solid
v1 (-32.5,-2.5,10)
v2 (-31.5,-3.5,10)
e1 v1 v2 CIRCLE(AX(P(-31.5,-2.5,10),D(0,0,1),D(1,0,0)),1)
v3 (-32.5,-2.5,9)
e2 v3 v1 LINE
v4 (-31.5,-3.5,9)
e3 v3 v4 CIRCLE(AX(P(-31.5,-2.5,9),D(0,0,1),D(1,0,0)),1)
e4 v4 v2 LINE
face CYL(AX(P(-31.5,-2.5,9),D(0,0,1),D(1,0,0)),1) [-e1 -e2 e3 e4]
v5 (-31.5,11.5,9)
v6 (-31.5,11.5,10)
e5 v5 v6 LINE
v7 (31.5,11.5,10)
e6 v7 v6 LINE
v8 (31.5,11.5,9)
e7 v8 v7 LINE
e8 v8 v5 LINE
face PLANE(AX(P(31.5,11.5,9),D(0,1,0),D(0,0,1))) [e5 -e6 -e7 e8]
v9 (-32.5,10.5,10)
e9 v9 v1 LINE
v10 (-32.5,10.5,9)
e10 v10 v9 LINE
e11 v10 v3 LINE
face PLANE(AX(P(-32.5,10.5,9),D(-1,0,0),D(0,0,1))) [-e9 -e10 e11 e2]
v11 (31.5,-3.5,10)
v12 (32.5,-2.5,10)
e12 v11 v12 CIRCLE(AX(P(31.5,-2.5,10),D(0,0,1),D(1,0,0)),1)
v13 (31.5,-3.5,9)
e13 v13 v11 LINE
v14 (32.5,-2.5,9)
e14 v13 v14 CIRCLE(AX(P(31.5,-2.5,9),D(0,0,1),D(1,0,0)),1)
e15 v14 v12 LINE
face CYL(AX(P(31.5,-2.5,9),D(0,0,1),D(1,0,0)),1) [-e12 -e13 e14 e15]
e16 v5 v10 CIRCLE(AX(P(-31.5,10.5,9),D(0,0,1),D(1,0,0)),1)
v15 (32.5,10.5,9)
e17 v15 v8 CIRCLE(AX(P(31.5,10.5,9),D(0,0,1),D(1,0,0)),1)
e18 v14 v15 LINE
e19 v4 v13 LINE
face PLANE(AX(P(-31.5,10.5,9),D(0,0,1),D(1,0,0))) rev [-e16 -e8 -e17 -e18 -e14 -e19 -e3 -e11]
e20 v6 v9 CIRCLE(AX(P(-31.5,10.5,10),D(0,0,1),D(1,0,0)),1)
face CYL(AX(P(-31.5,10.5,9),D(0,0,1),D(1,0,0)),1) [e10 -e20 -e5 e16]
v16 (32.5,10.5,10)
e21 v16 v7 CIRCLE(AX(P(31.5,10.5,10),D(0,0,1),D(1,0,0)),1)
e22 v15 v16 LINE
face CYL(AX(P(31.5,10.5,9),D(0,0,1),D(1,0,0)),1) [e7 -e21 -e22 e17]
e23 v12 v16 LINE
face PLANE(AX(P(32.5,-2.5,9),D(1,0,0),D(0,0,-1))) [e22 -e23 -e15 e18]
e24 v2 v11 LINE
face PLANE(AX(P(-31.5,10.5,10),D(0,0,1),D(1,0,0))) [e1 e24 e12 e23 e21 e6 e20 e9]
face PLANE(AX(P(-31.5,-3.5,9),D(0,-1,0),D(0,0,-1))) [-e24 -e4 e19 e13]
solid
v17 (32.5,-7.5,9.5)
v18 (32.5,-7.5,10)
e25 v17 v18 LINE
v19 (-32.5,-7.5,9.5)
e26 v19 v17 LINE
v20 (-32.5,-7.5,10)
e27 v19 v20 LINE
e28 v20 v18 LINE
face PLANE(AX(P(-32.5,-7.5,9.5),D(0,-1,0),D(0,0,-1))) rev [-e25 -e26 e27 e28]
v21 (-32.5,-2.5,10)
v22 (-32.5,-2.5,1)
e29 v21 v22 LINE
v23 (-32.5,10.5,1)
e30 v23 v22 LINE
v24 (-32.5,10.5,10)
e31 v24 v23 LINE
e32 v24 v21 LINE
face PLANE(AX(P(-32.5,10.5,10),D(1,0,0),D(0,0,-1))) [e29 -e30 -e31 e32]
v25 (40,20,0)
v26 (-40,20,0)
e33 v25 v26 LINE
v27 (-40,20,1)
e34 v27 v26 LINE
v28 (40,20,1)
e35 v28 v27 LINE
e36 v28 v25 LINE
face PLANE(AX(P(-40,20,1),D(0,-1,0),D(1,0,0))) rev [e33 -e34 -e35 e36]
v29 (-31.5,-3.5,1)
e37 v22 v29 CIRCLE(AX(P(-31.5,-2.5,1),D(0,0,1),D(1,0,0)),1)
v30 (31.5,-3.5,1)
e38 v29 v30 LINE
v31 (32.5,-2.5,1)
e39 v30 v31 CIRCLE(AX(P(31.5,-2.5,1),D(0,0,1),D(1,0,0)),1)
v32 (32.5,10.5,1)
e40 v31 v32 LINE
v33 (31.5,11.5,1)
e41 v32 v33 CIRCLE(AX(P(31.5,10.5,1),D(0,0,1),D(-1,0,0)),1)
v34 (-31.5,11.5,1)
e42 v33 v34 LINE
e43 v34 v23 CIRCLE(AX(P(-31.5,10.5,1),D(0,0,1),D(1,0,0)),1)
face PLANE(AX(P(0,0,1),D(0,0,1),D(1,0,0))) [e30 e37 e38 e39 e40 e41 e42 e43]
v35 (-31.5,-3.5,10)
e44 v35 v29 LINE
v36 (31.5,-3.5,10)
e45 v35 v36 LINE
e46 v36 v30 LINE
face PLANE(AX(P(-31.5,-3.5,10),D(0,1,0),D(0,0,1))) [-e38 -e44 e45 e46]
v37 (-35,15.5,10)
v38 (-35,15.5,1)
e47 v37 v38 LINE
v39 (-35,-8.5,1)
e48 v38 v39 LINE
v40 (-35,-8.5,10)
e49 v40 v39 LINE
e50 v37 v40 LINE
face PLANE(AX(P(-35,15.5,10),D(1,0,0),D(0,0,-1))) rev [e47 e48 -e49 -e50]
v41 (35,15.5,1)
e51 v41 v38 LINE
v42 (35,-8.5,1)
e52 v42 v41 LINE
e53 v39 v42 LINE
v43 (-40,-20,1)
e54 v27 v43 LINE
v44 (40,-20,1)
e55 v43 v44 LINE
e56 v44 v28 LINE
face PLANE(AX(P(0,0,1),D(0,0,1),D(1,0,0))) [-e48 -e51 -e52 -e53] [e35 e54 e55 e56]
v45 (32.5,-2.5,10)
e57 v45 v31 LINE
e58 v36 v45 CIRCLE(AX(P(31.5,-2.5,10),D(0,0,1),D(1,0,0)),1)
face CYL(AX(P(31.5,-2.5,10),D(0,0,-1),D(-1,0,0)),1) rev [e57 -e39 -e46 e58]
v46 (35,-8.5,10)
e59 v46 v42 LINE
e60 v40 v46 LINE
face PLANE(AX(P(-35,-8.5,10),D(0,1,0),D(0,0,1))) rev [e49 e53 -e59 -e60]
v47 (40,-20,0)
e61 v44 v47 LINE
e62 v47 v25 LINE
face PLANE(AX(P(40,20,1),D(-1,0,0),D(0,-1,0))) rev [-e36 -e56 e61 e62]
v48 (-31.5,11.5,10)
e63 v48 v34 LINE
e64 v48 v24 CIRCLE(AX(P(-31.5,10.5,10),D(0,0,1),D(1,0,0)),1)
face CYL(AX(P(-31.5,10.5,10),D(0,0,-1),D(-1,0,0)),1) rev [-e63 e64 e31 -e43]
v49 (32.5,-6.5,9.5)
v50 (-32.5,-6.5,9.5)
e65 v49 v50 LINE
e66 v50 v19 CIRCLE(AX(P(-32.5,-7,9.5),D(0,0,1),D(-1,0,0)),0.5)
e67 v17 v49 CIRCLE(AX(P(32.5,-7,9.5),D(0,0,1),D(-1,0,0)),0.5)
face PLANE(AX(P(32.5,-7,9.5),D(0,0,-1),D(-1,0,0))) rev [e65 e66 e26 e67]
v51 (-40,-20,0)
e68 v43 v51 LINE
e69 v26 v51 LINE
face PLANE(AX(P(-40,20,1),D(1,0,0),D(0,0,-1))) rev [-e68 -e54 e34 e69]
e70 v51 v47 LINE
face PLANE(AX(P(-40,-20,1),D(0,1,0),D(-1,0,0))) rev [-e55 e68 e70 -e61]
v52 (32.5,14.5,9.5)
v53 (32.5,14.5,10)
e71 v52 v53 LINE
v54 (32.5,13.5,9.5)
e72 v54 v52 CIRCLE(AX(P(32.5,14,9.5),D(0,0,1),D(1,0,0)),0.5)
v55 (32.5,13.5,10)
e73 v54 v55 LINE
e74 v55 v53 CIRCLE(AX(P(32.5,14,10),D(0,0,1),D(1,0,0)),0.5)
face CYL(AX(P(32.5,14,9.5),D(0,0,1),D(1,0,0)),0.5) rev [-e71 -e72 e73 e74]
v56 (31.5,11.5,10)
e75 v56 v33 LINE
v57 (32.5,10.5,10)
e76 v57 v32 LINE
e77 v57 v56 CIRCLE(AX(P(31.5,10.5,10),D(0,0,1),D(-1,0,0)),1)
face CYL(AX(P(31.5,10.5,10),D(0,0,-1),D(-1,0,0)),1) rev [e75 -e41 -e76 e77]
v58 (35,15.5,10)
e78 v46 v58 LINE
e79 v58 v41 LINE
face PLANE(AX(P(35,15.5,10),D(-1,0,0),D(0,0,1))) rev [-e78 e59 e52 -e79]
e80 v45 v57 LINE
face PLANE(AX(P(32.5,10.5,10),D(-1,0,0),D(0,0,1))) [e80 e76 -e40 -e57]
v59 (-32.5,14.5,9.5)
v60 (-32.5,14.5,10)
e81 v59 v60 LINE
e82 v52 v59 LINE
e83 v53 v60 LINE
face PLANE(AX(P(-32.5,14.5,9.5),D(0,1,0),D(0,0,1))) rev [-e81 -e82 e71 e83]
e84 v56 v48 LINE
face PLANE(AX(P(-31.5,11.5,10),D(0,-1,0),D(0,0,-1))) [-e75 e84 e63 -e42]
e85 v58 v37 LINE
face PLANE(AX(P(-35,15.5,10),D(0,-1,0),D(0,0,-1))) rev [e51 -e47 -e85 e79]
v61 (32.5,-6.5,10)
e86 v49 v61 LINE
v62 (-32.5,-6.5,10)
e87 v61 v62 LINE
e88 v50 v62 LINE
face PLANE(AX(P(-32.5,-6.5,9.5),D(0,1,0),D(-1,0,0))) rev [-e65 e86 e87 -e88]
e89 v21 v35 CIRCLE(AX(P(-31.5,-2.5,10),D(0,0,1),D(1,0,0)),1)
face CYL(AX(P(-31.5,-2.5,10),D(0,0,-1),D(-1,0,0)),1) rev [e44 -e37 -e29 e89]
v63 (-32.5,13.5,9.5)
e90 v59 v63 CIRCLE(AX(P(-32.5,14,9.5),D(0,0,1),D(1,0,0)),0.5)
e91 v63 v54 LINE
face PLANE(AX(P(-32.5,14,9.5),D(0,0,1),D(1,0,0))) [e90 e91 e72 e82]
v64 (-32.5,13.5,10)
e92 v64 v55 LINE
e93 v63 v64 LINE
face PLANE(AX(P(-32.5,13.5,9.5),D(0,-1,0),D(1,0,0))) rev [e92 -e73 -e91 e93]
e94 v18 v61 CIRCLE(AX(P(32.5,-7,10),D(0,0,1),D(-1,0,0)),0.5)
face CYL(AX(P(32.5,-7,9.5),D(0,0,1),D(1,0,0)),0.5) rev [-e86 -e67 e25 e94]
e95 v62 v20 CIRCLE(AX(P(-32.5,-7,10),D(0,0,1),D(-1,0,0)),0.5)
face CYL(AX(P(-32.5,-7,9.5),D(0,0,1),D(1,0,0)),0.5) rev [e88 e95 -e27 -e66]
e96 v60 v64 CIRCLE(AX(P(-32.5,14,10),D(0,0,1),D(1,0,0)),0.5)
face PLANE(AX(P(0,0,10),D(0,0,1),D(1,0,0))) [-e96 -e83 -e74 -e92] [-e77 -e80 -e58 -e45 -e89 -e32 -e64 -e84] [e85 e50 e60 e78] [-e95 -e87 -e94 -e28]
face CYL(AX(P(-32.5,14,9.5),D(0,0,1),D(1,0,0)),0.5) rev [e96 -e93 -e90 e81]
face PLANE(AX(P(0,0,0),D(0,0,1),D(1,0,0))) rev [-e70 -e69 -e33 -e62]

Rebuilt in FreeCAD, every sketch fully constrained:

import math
import FreeCAD as App
import Part
import Sketcher
from FreeCAD import Vector
Q = App.Units.Quantity

doc = App.newDocument("Part")
body = doc.addObject("PartDesign::Body", "Body")

sketch1 = doc.addObject("Sketcher::SketchObject", "Sketch")
body.addObject(sketch1)
sketch1.AttachmentSupport = (doc.XY_Plane, [""])
sketch1.MapMode = "FlatFace"
sketch1.addGeometry(Part.LineSegment(Vector(-40, 20, 0), Vector(-40, -20, 0)), False)
sketch1.addGeometry(Part.LineSegment(Vector(-40, -20, 0), Vector(40, -20, 0)), False)
sketch1.addGeometry(Part.LineSegment(Vector(40, -20, 0), Vector(40, 20, 0)), False)
sketch1.addGeometry(Part.LineSegment(Vector(40, 20, 0), Vector(-40, 20, 0)), False)
sketch1.addConstraint(Sketcher.Constraint("Coincident", 0, 2, 1, 1))
sketch1.addConstraint(Sketcher.Constraint("Coincident", 1, 2, 2, 1))
sketch1.addConstraint(Sketcher.Constraint("Coincident", 2, 2, 3, 1))
sketch1.addConstraint(Sketcher.Constraint("Coincident", 3, 2, 0, 1))
sketch1.addConstraint(Sketcher.Constraint("Vertical", 0))
sketch1.addConstraint(Sketcher.Constraint("Horizontal", 1))
sketch1.addConstraint(Sketcher.Constraint("Vertical", 2))
sketch1.addConstraint(Sketcher.Constraint("Horizontal", 3))
sketch1.addConstraint(Sketcher.Constraint("Symmetric", 0, 2, 2, 2, -1, 1))
sketch1.addConstraint(Sketcher.Constraint("DistanceX", 1, 1, 1, 2, Q("80 mm")))
sketch1.addConstraint(Sketcher.Constraint("DistanceY", 0, 2, 0, 1, Q("40 mm")))
pad1 = doc.addObject("PartDesign::Pad", "Pad")
body.addObject(pad1)
pad1.Profile = sketch1
pad1.Length = 1

sketch2 = doc.addObject("Sketcher::SketchObject", "Sketch001")
body.addObject(sketch2)
sketch2.AttachmentSupport = (doc.XY_Plane, [""])
sketch2.MapMode = "FlatFace"
sketch2.AttachmentOffset = App.Placement(Vector(0, 0, 1), App.Rotation())
sketch2.addGeometry(Part.LineSegment(Vector(-35, 15.5, 0), Vector(-35, -8.5, 0)), False)
sketch2.addGeometry(Part.LineSegment(Vector(-35, -8.5, 0), Vector(35, -8.5, 0)), False)
sketch2.addGeometry(Part.LineSegment(Vector(35, -8.5, 0), Vector(35, 15.5, 0)), False)
sketch2.addGeometry(Part.LineSegment(Vector(35, 15.5, 0), Vector(-35, 15.5, 0)), False)
sketch2.addGeometry(Part.ArcOfCircle(Part.Circle(Vector(-31.5, 10.5, 0), Vector(0, 0, 1), 1), math.radians(90), math.radians(180)), False)
sketch2.addGeometry(Part.LineSegment(Vector(-31.5, 11.5, 0), Vector(31.5, 11.5, 0)), False)
sketch2.addGeometry(Part.ArcOfCircle(Part.Circle(Vector(31.5, 10.5, 0), Vector(0, 0, 1), 1), math.radians(0), math.radians(90)), False)
sketch2.addGeometry(Part.LineSegment(Vector(32.5, 10.5, 0), Vector(32.5, -2.5, 0)), False)
sketch2.addGeometry(Part.ArcOfCircle(Part.Circle(Vector(31.5, -2.5, 0), Vector(0, 0, 1), 1), math.radians(-90), math.radians(0)), False)
sketch2.addGeometry(Part.LineSegment(Vector(31.5, -3.5, 0), Vector(-31.5, -3.5, 0)), False)
sketch2.addGeometry(Part.ArcOfCircle(Part.Circle(Vector(-31.5, -2.5, 0), Vector(0, 0, 1), 1), math.radians(-180), math.radians(-90)), False)
sketch2.addGeometry(Part.LineSegment(Vector(-32.5, -2.5, 0), Vector(-32.5, 10.5, 0)), False)
sketch2.addConstraint(Sketcher.Constraint("Coincident", 0, 2, 1, 1))
sketch2.addConstraint(Sketcher.Constraint("Coincident", 1, 2, 2, 1))
sketch2.addConstraint(Sketcher.Constraint("Coincident", 2, 2, 3, 1))
sketch2.addConstraint(Sketcher.Constraint("Coincident", 3, 2, 0, 1))
sketch2.addConstraint(Sketcher.Constraint("Tangent", 4, 1, 5, 1))
sketch2.addConstraint(Sketcher.Constraint("Tangent", 5, 2, 6, 2))
sketch2.addConstraint(Sketcher.Constraint("Tangent", 6, 1, 7, 1))
sketch2.addConstraint(Sketcher.Constraint("Tangent", 7, 2, 8, 2))
sketch2.addConstraint(Sketcher.Constraint("Tangent", 8, 1, 9, 1))
sketch2.addConstraint(Sketcher.Constraint("Tangent", 9, 2, 10, 2))
sketch2.addConstraint(Sketcher.Constraint("Tangent", 10, 1, 11, 1))
sketch2.addConstraint(Sketcher.Constraint("Tangent", 11, 2, 4, 2))
sketch2.addConstraint(Sketcher.Constraint("Vertical", 0))
sketch2.addConstraint(Sketcher.Constraint("Horizontal", 1))
sketch2.addConstraint(Sketcher.Constraint("Vertical", 2))
sketch2.addConstraint(Sketcher.Constraint("Horizontal", 3))
sketch2.addConstraint(Sketcher.Constraint("Horizontal", 5))
sketch2.addConstraint(Sketcher.Constraint("Vertical", 7))
sketch2.addConstraint(Sketcher.Constraint("Horizontal", 9))
sketch2.addConstraint(Sketcher.Constraint("Vertical", 11))
sketch2.addConstraint(Sketcher.Constraint("Equal", 4, 6))
sketch2.addConstraint(Sketcher.Constraint("Equal", 6, 8))
sketch2.addConstraint(Sketcher.Constraint("Equal", 8, 10))
sketch2.addConstraint(Sketcher.Constraint("Radius", 4, Q("1 mm")))
sketch2.addConstraint(Sketcher.Constraint("DistanceX", 1, 1, 1, 2, Q("70 mm")))
sketch2.addConstraint(Sketcher.Constraint("DistanceX", 5, 1, 5, 2, Q("63 mm")))
sketch2.addConstraint(Sketcher.Constraint("DistanceY", 0, 2, 0, 1, Q("24 mm")))
sketch2.addConstraint(Sketcher.Constraint("DistanceY", 7, 2, 7, 1, Q("13 mm")))
sketch2.addConstraint(Sketcher.Constraint("DistanceX", 0, 2, -1, 1, Q("35 mm")))
sketch2.addConstraint(Sketcher.Constraint("DistanceY", 0, 2, 10, 3, Q("6 mm")))
sketch2.addConstraint(Sketcher.Constraint("DistanceX", 4, 3, -1, 1, Q("31.5 mm")))
sketch2.addConstraint(Sketcher.Constraint("DistanceY", -1, 1, 4, 3, Q("10.5 mm")))
pad2 = doc.addObject("PartDesign::Pad", "Pad001")
body.addObject(pad2)
pad2.Profile = sketch2
pad2.Length = 9

sketch3 = doc.addObject("Sketcher::SketchObject", "Sketch002")
body.addObject(sketch3)
sketch3.AttachmentSupport = (doc.XY_Plane, [""])
sketch3.MapMode = "FlatFace"
sketch3.AttachmentOffset = App.Placement(Vector(0, 0, 10), App.Rotation())
sketch3.addGeometry(Part.LineSegment(Vector(32.5, 14.5, 0), Vector(-32.5, 14.5, 0)), False)
sketch3.addGeometry(Part.ArcOfCircle(Part.Circle(Vector(-32.5, 14, 0), Vector(0, 0, 1), 0.5), math.radians(90), math.radians(270)), False)
sketch3.addGeometry(Part.LineSegment(Vector(-32.5, 13.5, 0), Vector(32.5, 13.5, 0)), False)
sketch3.addGeometry(Part.ArcOfCircle(Part.Circle(Vector(32.5, 14, 0), Vector(0, 0, 1), 0.5), math.radians(-90), math.radians(90)), False)
sketch3.addGeometry(Part.LineSegment(Vector(32.5, -6.5, 0), Vector(-32.5, -6.5, 0)), False)
sketch3.addGeometry(Part.ArcOfCircle(Part.Circle(Vector(-32.5, -7, 0), Vector(0, 0, 1), 0.5), math.radians(90), math.radians(270)), False)
sketch3.addGeometry(Part.LineSegment(Vector(-32.5, -7.5, 0), Vector(32.5, -7.5, 0)), False)
sketch3.addGeometry(Part.ArcOfCircle(Part.Circle(Vector(32.5, -7, 0), Vector(0, 0, 1), 0.5), math.radians(-90), math.radians(90)), False)
sketch3.addConstraint(Sketcher.Constraint("Tangent", 0, 2, 1, 1))
sketch3.addConstraint(Sketcher.Constraint("Tangent", 1, 2, 2, 1))
sketch3.addConstraint(Sketcher.Constraint("Tangent", 2, 2, 3, 1))
sketch3.addConstraint(Sketcher.Constraint("Tangent", 3, 2, 0, 1))
sketch3.addConstraint(Sketcher.Constraint("Tangent", 4, 2, 5, 1))
sketch3.addConstraint(Sketcher.Constraint("Tangent", 5, 2, 6, 1))
sketch3.addConstraint(Sketcher.Constraint("Tangent", 6, 2, 7, 1))
sketch3.addConstraint(Sketcher.Constraint("Tangent", 7, 2, 4, 1))
sketch3.addConstraint(Sketcher.Constraint("Horizontal", 0))
sketch3.addConstraint(Sketcher.Constraint("Horizontal", 2))
sketch3.addConstraint(Sketcher.Constraint("Horizontal", 4))
sketch3.addConstraint(Sketcher.Constraint("Horizontal", 6))
sketch3.addConstraint(Sketcher.Constraint("Equal", 3, 5))
sketch3.addConstraint(Sketcher.Constraint("Vertical", 1, 3, 5, 3))
sketch3.addConstraint(Sketcher.Constraint("Vertical", 3, 3, 7, 3))
sketch3.addConstraint(Sketcher.Constraint("Radius", 1, Q("0.5 mm")))
sketch3.addConstraint(Sketcher.Constraint("DistanceX", 0, 2, 0, 1, Q("65 mm")))
sketch3.addConstraint(Sketcher.Constraint("DistanceY", -1, 1, 1, 3, Q("14 mm")))
sketch3.addConstraint(Sketcher.Constraint("DistanceY", 5, 3, -1, 1, Q("7 mm")))
sketch3.addConstraint(Sketcher.Constraint("DistanceX", 1, 3, -1, 1, Q("32.5 mm")))
pocket1 = doc.addObject("PartDesign::Pocket", "Pocket")
body.addObject(pocket1)
pocket1.Profile = sketch3
pocket1.Length = 0.5
body2 = doc.addObject("PartDesign::Body", "Body001")

sketch4 = doc.addObject("Sketcher::SketchObject", "Sketch003")
body2.addObject(sketch4)
sketch4.AttachmentSupport = (doc.getObject("XY_Plane001"), [""])
sketch4.MapMode = "FlatFace"
sketch4.AttachmentOffset = App.Placement(Vector(0, 0, 10), App.Rotation())
sketch4.addGeometry(Part.LineSegment(Vector(32.5, -2.5, 0), Vector(32.5, 10.5, 0)), False)
sketch4.addGeometry(Part.ArcOfCircle(Part.Circle(Vector(31.5, 10.5, 0), Vector(0, 0, 1), 1), math.radians(0), math.radians(90)), False)
sketch4.addGeometry(Part.LineSegment(Vector(31.5, 11.5, 0), Vector(-31.5, 11.5, 0)), False)
sketch4.addGeometry(Part.ArcOfCircle(Part.Circle(Vector(-31.5, 10.5, 0), Vector(0, 0, 1), 1), math.radians(90), math.radians(180)), False)
sketch4.addGeometry(Part.LineSegment(Vector(-32.5, 10.5, 0), Vector(-32.5, -2.5, 0)), False)
sketch4.addGeometry(Part.ArcOfCircle(Part.Circle(Vector(-31.5, -2.5, 0), Vector(0, 0, 1), 1), math.radians(-180), math.radians(-90)), False)
sketch4.addGeometry(Part.LineSegment(Vector(-31.5, -3.5, 0), Vector(31.5, -3.5, 0)), False)
sketch4.addGeometry(Part.ArcOfCircle(Part.Circle(Vector(31.5, -2.5, 0), Vector(0, 0, 1), 1), math.radians(-90), math.radians(0)), False)
sketch4.addConstraint(Sketcher.Constraint("Tangent", 0, 2, 1, 1))
sketch4.addConstraint(Sketcher.Constraint("Tangent", 1, 2, 2, 1))
sketch4.addConstraint(Sketcher.Constraint("Tangent", 2, 2, 3, 1))
sketch4.addConstraint(Sketcher.Constraint("Tangent", 3, 2, 4, 1))
sketch4.addConstraint(Sketcher.Constraint("Tangent", 4, 2, 5, 1))
sketch4.addConstraint(Sketcher.Constraint("Tangent", 5, 2, 6, 1))
sketch4.addConstraint(Sketcher.Constraint("Tangent", 6, 2, 7, 1))
sketch4.addConstraint(Sketcher.Constraint("Tangent", 7, 2, 0, 1))
sketch4.addConstraint(Sketcher.Constraint("Vertical", 0))
sketch4.addConstraint(Sketcher.Constraint("Horizontal", 2))
sketch4.addConstraint(Sketcher.Constraint("Vertical", 4))
sketch4.addConstraint(Sketcher.Constraint("Horizontal", 6))
sketch4.addConstraint(Sketcher.Constraint("Equal", 1, 3))
sketch4.addConstraint(Sketcher.Constraint("Equal", 3, 5))
sketch4.addConstraint(Sketcher.Constraint("Equal", 5, 7))
sketch4.addConstraint(Sketcher.Constraint("Radius", 1, Q("1 mm")))
sketch4.addConstraint(Sketcher.Constraint("DistanceX", 2, 2, 2, 1, Q("63 mm")))
sketch4.addConstraint(Sketcher.Constraint("DistanceY", 0, 1, 0, 2, Q("13 mm")))
sketch4.addConstraint(Sketcher.Constraint("DistanceX", -1, 1, 1, 3, Q("31.5 mm")))
sketch4.addConstraint(Sketcher.Constraint("DistanceY", -1, 1, 1, 3, Q("10.5 mm")))
pad3 = doc.addObject("PartDesign::Pad", "Pad002")
body2.addObject(pad3)
pad3.Profile = sketch4
pad3.Length = 1
pad3.Reversed = True

doc.recompute()
